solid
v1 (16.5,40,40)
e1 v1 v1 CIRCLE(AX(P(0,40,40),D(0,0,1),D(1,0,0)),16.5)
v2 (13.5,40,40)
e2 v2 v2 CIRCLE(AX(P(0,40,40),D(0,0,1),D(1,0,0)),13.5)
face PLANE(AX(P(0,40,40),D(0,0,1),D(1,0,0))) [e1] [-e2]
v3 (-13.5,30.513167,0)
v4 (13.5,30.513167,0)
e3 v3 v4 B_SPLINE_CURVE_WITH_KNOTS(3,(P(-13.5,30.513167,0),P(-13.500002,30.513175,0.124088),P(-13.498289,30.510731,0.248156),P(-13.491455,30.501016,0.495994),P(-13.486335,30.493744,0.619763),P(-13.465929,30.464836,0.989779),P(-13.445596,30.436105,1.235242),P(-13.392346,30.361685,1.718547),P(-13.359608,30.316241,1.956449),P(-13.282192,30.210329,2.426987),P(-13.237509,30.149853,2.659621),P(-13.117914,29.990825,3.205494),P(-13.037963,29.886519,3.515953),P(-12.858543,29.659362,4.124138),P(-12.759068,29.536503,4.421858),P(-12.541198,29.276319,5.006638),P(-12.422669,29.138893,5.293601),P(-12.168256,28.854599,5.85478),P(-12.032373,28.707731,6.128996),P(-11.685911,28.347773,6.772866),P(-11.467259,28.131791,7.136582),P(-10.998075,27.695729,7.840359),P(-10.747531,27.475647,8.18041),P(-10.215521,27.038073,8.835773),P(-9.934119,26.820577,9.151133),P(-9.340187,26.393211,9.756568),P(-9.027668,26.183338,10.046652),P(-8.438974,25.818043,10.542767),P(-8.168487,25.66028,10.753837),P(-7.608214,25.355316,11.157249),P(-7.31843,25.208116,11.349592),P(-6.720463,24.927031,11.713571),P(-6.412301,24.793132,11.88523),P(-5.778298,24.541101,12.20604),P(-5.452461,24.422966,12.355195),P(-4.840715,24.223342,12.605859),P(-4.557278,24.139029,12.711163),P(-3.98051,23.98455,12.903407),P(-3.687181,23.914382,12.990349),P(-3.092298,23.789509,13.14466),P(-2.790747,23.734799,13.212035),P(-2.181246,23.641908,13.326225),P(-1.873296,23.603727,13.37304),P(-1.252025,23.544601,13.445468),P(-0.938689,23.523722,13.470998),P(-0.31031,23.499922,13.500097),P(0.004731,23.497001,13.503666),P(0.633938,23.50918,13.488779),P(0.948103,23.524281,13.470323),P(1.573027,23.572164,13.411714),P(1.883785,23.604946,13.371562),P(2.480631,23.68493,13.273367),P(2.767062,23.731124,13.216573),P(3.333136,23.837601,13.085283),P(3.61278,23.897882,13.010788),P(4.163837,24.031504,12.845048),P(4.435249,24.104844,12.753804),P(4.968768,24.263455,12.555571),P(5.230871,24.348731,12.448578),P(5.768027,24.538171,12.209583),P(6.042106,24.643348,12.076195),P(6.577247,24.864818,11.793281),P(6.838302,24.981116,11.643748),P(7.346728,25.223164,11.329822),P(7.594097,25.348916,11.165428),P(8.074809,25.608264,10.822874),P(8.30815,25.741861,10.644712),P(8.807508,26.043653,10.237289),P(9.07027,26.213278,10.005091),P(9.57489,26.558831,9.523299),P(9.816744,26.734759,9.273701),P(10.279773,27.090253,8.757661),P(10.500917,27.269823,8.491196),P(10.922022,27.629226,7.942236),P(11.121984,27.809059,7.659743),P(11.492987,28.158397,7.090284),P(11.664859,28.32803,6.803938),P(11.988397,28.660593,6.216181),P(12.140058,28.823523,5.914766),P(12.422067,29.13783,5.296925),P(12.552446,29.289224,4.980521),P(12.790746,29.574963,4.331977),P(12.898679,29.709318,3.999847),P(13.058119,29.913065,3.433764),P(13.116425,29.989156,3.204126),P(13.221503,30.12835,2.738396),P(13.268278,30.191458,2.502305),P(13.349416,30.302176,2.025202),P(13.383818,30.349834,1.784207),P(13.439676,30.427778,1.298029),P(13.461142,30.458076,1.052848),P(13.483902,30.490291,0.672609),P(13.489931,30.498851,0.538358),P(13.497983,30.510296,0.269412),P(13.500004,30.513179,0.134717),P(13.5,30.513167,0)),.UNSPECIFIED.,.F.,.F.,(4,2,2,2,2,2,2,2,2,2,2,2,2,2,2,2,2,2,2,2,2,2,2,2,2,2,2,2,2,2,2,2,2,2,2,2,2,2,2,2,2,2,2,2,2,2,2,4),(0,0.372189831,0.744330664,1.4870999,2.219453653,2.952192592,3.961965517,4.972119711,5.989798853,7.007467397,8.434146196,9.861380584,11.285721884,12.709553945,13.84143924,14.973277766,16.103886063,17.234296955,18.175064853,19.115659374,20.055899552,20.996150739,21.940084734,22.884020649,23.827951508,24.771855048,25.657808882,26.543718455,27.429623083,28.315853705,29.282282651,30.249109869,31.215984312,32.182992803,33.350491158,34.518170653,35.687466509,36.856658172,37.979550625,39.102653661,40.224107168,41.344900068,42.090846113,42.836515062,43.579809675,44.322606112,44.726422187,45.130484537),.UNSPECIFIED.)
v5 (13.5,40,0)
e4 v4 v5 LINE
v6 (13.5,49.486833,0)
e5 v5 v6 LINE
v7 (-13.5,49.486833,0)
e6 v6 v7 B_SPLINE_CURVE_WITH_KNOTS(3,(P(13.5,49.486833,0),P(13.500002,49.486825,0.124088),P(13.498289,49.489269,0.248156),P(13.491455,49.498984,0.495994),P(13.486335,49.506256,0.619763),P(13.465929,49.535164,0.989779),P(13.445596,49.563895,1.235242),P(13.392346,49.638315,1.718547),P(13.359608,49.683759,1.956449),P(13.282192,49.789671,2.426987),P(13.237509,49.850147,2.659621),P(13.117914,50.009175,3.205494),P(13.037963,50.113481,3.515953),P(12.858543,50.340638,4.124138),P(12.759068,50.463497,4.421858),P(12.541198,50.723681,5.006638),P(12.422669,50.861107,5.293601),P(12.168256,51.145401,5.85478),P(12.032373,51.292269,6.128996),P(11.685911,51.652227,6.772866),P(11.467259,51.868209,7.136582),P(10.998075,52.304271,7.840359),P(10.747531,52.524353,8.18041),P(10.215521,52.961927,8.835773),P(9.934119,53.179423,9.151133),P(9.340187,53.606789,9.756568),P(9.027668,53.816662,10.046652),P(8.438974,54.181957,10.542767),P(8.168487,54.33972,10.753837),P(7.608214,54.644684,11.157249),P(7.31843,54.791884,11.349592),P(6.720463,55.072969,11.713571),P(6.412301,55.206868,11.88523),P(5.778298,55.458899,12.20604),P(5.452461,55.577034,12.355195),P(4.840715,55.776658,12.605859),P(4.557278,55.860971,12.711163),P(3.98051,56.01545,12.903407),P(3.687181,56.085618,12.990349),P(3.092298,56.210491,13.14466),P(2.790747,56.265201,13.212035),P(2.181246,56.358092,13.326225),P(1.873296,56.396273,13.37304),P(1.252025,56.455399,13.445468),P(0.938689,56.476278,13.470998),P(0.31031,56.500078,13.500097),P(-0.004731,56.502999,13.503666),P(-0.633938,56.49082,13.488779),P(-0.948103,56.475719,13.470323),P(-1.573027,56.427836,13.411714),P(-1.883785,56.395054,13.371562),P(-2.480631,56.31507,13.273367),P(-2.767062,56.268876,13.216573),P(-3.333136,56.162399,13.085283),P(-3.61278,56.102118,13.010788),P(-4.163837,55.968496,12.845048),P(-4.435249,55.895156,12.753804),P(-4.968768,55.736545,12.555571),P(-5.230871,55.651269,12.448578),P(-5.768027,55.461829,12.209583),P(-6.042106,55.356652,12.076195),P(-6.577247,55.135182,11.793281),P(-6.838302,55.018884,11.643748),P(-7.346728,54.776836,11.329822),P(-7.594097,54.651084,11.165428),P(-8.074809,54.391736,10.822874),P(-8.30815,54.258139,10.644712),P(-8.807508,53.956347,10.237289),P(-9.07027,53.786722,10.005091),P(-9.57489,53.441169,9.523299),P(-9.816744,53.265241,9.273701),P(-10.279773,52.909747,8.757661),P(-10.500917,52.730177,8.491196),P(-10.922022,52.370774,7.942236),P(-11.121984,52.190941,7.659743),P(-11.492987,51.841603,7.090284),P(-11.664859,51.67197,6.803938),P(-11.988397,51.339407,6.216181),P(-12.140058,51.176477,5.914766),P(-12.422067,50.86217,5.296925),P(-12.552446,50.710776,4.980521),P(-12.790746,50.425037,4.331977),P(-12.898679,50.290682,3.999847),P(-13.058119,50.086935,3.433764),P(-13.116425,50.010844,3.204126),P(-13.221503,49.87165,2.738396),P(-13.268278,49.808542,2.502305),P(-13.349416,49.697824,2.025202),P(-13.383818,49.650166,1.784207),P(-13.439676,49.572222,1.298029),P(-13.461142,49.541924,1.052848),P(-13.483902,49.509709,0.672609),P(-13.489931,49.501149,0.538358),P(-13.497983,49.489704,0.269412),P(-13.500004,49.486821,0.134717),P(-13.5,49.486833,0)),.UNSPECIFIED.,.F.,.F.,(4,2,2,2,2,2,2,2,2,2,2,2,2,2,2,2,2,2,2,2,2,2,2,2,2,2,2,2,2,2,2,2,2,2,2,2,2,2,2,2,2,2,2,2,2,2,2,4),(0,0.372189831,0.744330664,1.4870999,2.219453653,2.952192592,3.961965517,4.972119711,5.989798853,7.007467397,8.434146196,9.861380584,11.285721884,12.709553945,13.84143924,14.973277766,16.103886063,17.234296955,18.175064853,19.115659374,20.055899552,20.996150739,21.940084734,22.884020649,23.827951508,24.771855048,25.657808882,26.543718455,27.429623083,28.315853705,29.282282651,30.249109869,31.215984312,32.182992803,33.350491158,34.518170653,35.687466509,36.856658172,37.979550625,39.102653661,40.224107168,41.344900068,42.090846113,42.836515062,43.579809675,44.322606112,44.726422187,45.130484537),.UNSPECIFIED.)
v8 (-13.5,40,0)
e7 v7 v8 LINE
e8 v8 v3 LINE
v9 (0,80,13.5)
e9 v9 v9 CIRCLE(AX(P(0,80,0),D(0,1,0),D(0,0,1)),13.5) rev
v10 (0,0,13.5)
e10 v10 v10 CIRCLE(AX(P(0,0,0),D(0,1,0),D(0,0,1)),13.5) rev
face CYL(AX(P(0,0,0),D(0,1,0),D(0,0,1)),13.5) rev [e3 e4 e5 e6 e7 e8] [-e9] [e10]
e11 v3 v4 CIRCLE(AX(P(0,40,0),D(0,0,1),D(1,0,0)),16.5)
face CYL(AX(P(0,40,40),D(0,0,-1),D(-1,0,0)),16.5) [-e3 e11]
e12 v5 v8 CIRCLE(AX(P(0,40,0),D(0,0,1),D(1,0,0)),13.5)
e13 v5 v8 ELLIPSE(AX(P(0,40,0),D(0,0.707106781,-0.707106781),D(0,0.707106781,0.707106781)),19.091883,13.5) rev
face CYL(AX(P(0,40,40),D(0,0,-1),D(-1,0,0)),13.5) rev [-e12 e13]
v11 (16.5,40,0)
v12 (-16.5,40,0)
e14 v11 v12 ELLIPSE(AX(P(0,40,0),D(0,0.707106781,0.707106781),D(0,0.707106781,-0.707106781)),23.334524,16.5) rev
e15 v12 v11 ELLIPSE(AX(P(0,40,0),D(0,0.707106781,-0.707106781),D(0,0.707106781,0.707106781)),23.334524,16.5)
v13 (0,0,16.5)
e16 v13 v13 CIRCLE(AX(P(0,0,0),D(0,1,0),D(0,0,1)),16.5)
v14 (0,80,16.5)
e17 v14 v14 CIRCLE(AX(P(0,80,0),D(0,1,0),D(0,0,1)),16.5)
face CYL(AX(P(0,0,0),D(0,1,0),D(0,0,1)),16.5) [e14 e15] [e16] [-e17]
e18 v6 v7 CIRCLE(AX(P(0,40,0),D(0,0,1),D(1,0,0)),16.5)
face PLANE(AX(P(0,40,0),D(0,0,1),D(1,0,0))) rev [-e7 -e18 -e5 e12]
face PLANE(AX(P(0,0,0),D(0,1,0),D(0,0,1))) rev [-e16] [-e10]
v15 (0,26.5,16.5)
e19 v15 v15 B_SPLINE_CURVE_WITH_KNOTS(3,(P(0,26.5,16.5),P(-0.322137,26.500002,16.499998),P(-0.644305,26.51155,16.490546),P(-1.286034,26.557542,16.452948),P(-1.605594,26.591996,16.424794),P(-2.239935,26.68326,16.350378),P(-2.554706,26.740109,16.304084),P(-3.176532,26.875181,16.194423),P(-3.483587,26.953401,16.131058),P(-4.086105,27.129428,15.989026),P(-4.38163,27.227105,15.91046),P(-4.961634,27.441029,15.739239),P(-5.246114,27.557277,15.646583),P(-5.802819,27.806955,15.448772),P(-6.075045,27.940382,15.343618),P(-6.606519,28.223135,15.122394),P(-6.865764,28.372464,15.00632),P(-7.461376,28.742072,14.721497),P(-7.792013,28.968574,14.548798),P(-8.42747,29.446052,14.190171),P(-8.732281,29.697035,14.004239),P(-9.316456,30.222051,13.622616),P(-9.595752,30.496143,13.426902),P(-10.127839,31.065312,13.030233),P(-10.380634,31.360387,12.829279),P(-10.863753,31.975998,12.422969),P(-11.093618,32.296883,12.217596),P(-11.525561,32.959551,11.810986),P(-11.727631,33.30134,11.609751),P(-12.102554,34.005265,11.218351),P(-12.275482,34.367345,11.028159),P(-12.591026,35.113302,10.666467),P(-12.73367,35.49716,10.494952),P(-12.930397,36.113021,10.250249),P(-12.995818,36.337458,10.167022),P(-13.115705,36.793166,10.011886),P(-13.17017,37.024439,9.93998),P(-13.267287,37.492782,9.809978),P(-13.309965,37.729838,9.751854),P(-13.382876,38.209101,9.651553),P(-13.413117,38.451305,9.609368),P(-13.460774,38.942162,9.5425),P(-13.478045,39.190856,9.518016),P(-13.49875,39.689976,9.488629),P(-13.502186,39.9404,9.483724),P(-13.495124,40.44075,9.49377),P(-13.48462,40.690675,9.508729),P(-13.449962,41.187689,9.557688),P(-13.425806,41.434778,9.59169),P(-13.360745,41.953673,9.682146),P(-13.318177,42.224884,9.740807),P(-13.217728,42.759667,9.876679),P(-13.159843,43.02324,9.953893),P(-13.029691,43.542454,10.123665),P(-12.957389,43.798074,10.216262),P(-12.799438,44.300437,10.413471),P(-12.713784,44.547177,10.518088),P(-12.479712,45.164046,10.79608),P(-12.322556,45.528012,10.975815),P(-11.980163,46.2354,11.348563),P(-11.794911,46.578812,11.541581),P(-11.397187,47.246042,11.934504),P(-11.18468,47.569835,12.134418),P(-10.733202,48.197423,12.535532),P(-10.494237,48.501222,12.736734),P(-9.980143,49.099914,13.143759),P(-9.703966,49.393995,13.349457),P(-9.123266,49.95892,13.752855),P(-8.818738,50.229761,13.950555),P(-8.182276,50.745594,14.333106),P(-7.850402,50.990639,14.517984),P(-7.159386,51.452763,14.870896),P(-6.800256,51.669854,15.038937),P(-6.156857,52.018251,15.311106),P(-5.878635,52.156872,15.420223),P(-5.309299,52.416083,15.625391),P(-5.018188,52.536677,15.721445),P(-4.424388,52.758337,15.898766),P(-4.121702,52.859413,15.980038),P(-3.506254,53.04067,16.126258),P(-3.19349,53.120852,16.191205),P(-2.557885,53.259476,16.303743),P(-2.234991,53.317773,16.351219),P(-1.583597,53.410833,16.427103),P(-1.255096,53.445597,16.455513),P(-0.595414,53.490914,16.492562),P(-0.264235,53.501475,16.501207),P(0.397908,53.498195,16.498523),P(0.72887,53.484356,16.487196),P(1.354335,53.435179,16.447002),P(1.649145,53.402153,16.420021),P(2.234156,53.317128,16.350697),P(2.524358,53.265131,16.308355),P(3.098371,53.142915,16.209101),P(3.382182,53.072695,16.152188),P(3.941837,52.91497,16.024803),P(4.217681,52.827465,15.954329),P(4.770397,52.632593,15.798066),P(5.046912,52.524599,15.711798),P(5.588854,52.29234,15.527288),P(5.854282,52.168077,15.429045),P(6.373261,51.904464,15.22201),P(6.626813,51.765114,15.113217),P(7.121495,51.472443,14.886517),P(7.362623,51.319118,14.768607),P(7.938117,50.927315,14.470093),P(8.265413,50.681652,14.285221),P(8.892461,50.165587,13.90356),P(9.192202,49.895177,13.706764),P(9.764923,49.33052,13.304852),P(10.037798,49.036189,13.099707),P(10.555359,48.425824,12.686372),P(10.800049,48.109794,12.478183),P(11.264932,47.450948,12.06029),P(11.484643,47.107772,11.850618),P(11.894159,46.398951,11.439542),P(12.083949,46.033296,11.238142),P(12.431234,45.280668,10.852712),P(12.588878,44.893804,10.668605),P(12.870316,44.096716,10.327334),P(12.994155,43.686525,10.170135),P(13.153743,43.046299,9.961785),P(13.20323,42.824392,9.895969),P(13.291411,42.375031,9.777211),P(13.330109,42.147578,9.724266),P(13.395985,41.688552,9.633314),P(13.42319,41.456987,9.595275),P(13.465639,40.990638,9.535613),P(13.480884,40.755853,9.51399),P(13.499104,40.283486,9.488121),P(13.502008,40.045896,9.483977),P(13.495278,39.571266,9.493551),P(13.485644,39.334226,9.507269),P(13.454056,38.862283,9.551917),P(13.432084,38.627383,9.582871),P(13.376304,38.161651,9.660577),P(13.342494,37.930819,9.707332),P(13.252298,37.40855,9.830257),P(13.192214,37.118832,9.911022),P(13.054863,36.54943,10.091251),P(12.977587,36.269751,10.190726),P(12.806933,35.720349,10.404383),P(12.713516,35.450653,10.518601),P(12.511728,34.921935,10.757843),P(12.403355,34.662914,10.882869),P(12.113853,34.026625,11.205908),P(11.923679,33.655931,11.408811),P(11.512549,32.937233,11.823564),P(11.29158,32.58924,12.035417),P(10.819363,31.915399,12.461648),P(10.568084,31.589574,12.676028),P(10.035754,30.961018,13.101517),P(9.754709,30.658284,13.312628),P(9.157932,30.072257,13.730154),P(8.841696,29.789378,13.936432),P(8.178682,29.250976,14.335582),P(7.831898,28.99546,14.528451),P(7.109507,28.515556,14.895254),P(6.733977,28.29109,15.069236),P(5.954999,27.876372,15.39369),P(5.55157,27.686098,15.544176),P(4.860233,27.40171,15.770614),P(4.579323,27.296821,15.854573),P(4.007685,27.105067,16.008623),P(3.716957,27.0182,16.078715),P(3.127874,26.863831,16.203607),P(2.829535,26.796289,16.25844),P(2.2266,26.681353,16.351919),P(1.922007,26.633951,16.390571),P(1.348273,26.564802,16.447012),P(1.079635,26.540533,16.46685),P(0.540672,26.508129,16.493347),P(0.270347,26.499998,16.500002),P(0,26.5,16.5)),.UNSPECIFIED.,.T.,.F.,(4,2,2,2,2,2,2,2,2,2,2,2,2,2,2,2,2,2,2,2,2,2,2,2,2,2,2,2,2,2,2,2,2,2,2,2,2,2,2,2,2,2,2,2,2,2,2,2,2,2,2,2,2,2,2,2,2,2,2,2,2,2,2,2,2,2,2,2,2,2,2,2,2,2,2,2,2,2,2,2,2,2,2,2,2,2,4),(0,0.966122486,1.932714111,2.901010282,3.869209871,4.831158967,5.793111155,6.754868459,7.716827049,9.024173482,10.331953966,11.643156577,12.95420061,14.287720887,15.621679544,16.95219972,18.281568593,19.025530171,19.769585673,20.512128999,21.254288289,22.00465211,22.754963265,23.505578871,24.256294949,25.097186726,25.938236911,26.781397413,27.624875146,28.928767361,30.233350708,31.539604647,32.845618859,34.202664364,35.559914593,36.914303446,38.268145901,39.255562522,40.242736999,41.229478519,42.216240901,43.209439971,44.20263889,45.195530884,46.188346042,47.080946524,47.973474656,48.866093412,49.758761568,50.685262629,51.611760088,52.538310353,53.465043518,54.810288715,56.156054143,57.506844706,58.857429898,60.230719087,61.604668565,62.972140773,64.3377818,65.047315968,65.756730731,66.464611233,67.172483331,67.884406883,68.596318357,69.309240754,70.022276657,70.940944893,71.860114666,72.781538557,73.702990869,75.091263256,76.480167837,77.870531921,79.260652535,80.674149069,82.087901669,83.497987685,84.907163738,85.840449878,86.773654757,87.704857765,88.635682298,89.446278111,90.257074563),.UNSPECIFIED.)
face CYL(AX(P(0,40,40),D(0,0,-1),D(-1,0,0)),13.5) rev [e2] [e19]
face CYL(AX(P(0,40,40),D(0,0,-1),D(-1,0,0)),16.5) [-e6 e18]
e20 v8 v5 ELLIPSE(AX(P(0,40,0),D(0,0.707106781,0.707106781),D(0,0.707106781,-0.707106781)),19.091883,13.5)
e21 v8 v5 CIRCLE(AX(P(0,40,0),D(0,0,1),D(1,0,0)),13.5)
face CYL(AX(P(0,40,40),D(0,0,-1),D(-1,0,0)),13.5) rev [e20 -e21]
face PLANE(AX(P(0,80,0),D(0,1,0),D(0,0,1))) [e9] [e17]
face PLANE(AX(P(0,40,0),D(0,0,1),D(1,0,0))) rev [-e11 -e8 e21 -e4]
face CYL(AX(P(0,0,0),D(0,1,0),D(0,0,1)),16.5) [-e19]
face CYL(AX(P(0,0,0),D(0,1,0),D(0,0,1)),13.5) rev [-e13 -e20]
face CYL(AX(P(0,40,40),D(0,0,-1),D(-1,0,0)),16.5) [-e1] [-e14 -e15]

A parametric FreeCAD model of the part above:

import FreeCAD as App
import Part
import Sketcher
from FreeCAD import Vector

doc = App.newDocument("Part")
body = doc.addObject("PartDesign::Body", "Body")

# Sketch on XZ plane
sketch1 = doc.addObject("Sketcher::SketchObject", "Sketch")
body.addObject(sketch1)
sketch1.AttachmentSupport = (doc.XZ_Plane, [""])
sketch1.MapMode = "FlatFace"
sketch1.addGeometry([
    Part.Circle(Vector(0, 0, 0), Vector(0, 0, 1), 16),
    Part.Circle(Vector(0, 0, 0), Vector(0, 0, 1), 14),
], False)
sketch1.addConstraint([
    Sketcher.Constraint("Coincident", 0, 3, -1, 1),
    Sketcher.Constraint("Coincident", 1, 3, -1, 1),
    Sketcher.Constraint("Diameter", 0, 33.0),
    Sketcher.Constraint("Diameter", 1, 27.0),
])

# Sketch on XY plane
sketch2 = doc.addObject("Sketcher::SketchObject", "Sketch001")
body.addObject(sketch2)
sketch2.AttachmentSupport = (doc.XY_Plane, [""])
sketch2.MapMode = "FlatFace"
sketch2.addGeometry(Part.LineSegment(Vector(0, 0, 0), Vector(0, 80, 0)), False)
sketch2.addConstraint([
    Sketcher.Constraint("Vertical", 0),
    Sketcher.Constraint("Coincident", 0, 1, -1, 1),
    Sketcher.Constraint("DistanceY", 0, 1, 0, 2, 80.0),
])
doc.recompute()

additivepipe = doc.addObject("PartDesign::AdditivePipe", "AdditivePipe")
body.addObject(additivepipe)
additivepipe.Profile = sketch1
additivepipe.Spine = (sketch2, ["Edge1"])

# Sketch on XY plane
sketch3 = doc.addObject("Sketcher::SketchObject", "Sketch002")
body.addObject(sketch3)
sketch3.AttachmentSupport = (doc.XY_Plane, [""])
sketch3.MapMode = "FlatFace"
sketch3.addGeometry([
    Part.Circle(Vector(0, 40, 0), Vector(0, 0, 1), 16),
    Part.Circle(Vector(0, 40, 0), Vector(0, 0, 1), 14),
], False)
sketch3.addConstraint([
    Sketcher.Constraint("Coincident", 1, 3, 0, 3),
    Sketcher.Constraint("PointOnObject", 0, 3, -2),
    Sketcher.Constraint("Diameter", 0, 33.0),
    Sketcher.Constraint("Diameter", 1, 27.0),
    Sketcher.Constraint("DistanceY", -1, 1, 0, 3, 40.0),
])
pad1 = doc.addObject("PartDesign::Pad", "Pad")
body.addObject(pad1)
pad1.Profile = sketch3
pad1.Length = 40

doc.recompute()
